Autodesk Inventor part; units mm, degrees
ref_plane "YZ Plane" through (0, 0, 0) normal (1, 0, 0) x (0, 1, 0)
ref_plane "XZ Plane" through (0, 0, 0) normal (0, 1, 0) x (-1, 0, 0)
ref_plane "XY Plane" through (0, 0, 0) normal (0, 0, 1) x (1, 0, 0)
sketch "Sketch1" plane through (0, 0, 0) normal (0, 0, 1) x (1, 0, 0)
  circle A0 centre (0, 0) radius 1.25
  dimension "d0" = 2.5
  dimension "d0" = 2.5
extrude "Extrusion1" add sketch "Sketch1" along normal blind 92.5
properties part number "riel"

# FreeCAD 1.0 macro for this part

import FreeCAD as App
import Part
import Sketcher

V = App.Vector
Q = App.Units.Quantity

doc = App.newDocument("Part")
body = doc.addObject("PartDesign::Body", "Body")

# Sketch on XY plane
sketch1 = body.newObject("Sketcher::SketchObject", "Sketch")
sketch1.AttachmentSupport = (doc.getObject("XY_Plane"), [""])
sketch1.MapMode = "FlatFace"
sketch1.addGeometry(Part.Circle(V(0, 0, 0), V(0, 0, 1), 1.25), False)
sketch1.addConstraint([
    Sketcher.Constraint("Coincident", 0, 3, -1, 1),
    Sketcher.Constraint("Diameter", 0, Q("2.5 mm")),
])
pad1 = body.newObject("PartDesign::Pad", "Pad")
pad1.Profile = sketch1
pad1.Length = 92.5

doc.recompute()
